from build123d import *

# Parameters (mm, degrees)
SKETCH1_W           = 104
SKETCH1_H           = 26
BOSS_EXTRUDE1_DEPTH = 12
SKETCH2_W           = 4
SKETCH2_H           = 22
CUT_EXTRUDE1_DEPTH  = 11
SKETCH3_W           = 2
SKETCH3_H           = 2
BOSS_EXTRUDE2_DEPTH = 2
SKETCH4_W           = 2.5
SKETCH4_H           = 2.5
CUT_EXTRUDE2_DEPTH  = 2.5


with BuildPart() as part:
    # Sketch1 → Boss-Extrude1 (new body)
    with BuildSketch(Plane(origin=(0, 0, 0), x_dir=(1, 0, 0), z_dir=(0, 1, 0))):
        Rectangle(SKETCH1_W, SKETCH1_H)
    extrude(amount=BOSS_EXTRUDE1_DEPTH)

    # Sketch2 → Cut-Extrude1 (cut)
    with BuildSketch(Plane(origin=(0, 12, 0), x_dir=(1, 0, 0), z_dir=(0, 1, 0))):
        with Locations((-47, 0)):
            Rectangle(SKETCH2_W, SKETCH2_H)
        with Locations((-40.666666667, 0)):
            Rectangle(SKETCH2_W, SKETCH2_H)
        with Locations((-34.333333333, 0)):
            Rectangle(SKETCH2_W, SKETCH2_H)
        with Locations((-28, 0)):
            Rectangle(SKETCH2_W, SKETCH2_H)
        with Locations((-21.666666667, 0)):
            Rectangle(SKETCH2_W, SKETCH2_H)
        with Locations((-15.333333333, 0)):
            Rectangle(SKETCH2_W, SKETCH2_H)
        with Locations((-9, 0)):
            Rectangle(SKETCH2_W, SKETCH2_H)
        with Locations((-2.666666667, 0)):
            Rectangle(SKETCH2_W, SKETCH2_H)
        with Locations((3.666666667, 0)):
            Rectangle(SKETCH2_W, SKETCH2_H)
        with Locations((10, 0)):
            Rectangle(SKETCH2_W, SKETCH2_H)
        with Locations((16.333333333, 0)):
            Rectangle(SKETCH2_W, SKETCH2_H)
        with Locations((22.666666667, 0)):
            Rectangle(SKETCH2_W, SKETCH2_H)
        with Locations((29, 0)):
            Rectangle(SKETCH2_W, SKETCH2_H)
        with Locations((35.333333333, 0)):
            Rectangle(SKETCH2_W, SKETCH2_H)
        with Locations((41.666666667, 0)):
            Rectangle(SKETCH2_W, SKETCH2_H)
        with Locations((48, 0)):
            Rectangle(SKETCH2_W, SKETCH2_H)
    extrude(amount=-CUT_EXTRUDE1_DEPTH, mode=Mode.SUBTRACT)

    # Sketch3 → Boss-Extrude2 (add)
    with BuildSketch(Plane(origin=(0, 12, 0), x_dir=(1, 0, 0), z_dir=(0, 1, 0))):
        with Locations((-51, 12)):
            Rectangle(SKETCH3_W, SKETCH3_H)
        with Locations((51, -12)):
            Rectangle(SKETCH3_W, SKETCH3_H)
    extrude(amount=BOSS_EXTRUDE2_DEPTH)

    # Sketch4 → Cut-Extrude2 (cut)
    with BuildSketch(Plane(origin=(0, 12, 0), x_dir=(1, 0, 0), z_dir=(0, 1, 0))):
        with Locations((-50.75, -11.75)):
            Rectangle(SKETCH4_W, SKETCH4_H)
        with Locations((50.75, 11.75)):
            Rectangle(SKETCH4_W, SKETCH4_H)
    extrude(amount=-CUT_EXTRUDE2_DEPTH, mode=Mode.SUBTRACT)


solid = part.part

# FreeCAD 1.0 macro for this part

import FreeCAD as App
import Part
import Sketcher


def add_polygon(sketch, points):
    """Adds a closed chain of lines whose ends are joined by coincident constraints."""
    first, n = sketch.GeometryCount, len(points)
    for a, b in zip(points, points[1:] + points[:1]):
        sketch.addGeometry(Part.LineSegment(App.Vector(*a, 0), App.Vector(*b, 0)), False)
    for i in range(n):
        sketch.addConstraint(Sketcher.Constraint("Coincident", first + i, 2, first + (i + 1) % n, 1))

doc = App.newDocument("Part")
body = doc.addObject("PartDesign::Body", "Body")

# Sketch on XZ plane
sketch1 = body.newObject("Sketcher::SketchObject", "Sketch")
sketch1.AttachmentSupport = (doc.getObject("XZ_Plane"), [""])
sketch1.MapMode = "FlatFace"
add_polygon(sketch1, [(-52, -13), (-52, 13), (52, 13), (52, -13)])  # lines 0-3
sketch1.addConstraint([
    Sketcher.Constraint("Vertical", 0),
    Sketcher.Constraint("Horizontal", 1),
    Sketcher.Constraint("Vertical", 2),
    Sketcher.Constraint("Horizontal", 3),
    Sketcher.Constraint("Symmetric", 0, 2, 2, 2, -1, 1),
    Sketcher.Constraint("DistanceX", 1, 1, 1, 2, 104.0),
    Sketcher.Constraint("DistanceY", 0, 1, 0, 2, 26.0),
])
pad1 = body.newObject("PartDesign::Pad", "Pad")
pad1.Profile = sketch1
pad1.Length = 12
pad1.Reversed = True

# Sketch on XZ plane
sketch2 = body.newObject("Sketcher::SketchObject", "Sketch001")
sketch2.AttachmentSupport = (doc.getObject("XZ_Plane"), [""])
sketch2.MapMode = "FlatFace"
sketch2.AttachmentOffset = App.Placement(App.Vector(0, 0, -12), App.Rotation())
add_polygon(sketch2, [(-49, -11), (-49, 11), (-45, 11), (-45, -11)])  # lines 0-3
add_polygon(sketch2, [(-42.7, -11), (-42.7, 11), (-38.7, 11), (-38.7, -11)])  # lines 4-7
add_polygon(sketch2, [(-36.3, -11), (-36.3, 11), (-32.3, 11), (-32.3, -11)])  # lines 8-11
add_polygon(sketch2, [(-30, -11), (-30, 11), (-26, 11), (-26, -11)])  # lines 12-15
add_polygon(sketch2, [(-23.7, -11), (-23.7, 11), (-19.7, 11), (-19.7, -11)])  # lines 16-19
add_polygon(sketch2, [(-17.3, -11), (-17.3, 11), (-13.3, 11), (-13.3, -11)])  # lines 20-23
add_polygon(sketch2, [(-11, -11), (-11, 11), (-7, 11), (-7, -11)])  # lines 24-27
add_polygon(sketch2, [(-4.7, -11), (-4.7, 11), (-0.7, 11), (-0.7, -11)])  # lines 28-31
add_polygon(sketch2, [(1.7, -11), (1.7, 11), (5.7, 11), (5.7, -11)])  # lines 32-35
add_polygon(sketch2, [(8, -11), (8, 11), (12, 11), (12, -11)])  # lines 36-39
add_polygon(sketch2, [(14.3, -11), (14.3, 11), (18.3, 11), (18.3, -11)])  # lines 40-43
add_polygon(sketch2, [(20.7, -11), (20.7, 11), (24.7, 11), (24.7, -11)])  # lines 44-47
add_polygon(sketch2, [(27, -11), (27, 11), (31, 11), (31, -11)])  # lines 48-51
add_polygon(sketch2, [(33.3, -11), (33.3, 11), (37.3, 11), (37.3, -11)])  # lines 52-55
add_polygon(sketch2, [(39.7, -11), (39.7, 11), (43.7, 11), (43.7, -11)])  # lines 56-59
add_polygon(sketch2, [(46, -11), (46, 11), (50, 11), (50, -11)])  # lines 60-63
sketch2.addConstraint([
    Sketcher.Constraint("Vertical", 0),
    Sketcher.Constraint("Horizontal", 1),
    Sketcher.Constraint("Vertical", 2),
    Sketcher.Constraint("Horizontal", 3),
    Sketcher.Constraint("Vertical", 4),
    Sketcher.Constraint("Horizontal", 5),
    Sketcher.Constraint("Vertical", 6),
    Sketcher.Constraint("Horizontal", 7),
    Sketcher.Constraint("Vertical", 8),
    Sketcher.Constraint("Horizontal", 9),
    Sketcher.Constraint("Vertical", 10),
    Sketcher.Constraint("Horizontal", 11),
    Sketcher.Constraint("Vertical", 12),
    Sketcher.Constraint("Horizontal", 13),
    Sketcher.Constraint("Vertical", 14),
    Sketcher.Constraint("Horizontal", 15),
    Sketcher.Constraint("Vertical", 16),
    Sketcher.Constraint("Horizontal", 17),
    Sketcher.Constraint("Vertical", 18),
    Sketcher.Constraint("Horizontal", 19),
    Sketcher.Constraint("Vertical", 20),
    Sketcher.Constraint("Horizontal", 21),
    Sketcher.Constraint("Vertical", 22),
    Sketcher.Constraint("Horizontal", 23),
    Sketcher.Constraint("Vertical", 24),
    Sketcher.Constraint("Horizontal", 25),
    Sketcher.Constraint("Vertical", 26),
    Sketcher.Constraint("Horizontal", 27),
    Sketcher.Constraint("Vertical", 28),
    Sketcher.Constraint("Horizontal", 29),
    Sketcher.Constraint("Vertical", 30),
    Sketcher.Constraint("Horizontal", 31),
    Sketcher.Constraint("Vertical", 32),
    Sketcher.Constraint("Horizontal", 33),
    Sketcher.Constraint("Vertical", 34),
    Sketcher.Constraint("Horizontal", 35),
    Sketcher.Constraint("Vertical", 36),
    Sketcher.Constraint("Horizontal", 37),
    Sketcher.Constraint("Vertical", 38),
    Sketcher.Constraint("Horizontal", 39),
    Sketcher.Constraint("Vertical", 40),
    Sketcher.Constraint("Horizontal", 41),
    Sketcher.Constraint("Vertical", 42),
    Sketcher.Constraint("Horizontal", 43),
    Sketcher.Constraint("Vertical", 44),
    Sketcher.Constraint("Horizontal", 45),
    Sketcher.Constraint("Vertical", 46),
    Sketcher.Constraint("Horizontal", 47),
    Sketcher.Constraint("Vertical", 48),
    Sketcher.Constraint("Horizontal", 49),
    Sketcher.Constraint("Vertical", 50),
    Sketcher.Constraint("Horizontal", 51),
    Sketcher.Constraint("Vertical", 52),
    Sketcher.Constraint("Horizontal", 53),
    Sketcher.Constraint("Vertical", 54),
    Sketcher.Constraint("Horizontal", 55),
    Sketcher.Constraint("Vertical", 56),
    Sketcher.Constraint("Horizontal", 57),
    Sketcher.Constraint("Vertical", 58),
    Sketcher.Constraint("Horizontal", 59),
    Sketcher.Constraint("Vertical", 60),
    Sketcher.Constraint("Horizontal", 61),
    Sketcher.Constraint("Vertical", 62),
    Sketcher.Constraint("Horizontal", 63),
    Sketcher.Constraint("Horizontal", 1, 2, 4, 2),
    Sketcher.Constraint("Horizontal", 3, 2, 6, 2),
    Sketcher.Constraint("Horizontal", 5, 2, 8, 2),
    Sketcher.Constraint("Horizontal", 7, 2, 10, 2),
    Sketcher.Constraint("Horizontal", 9, 2, 12, 2),
    Sketcher.Constraint("Horizontal", 11, 2, 14, 2),
    Sketcher.Constraint("Horizontal", 13, 2, 16, 2),
    Sketcher.Constraint("Horizontal", 15, 2, 18, 2),
    Sketcher.Constraint("Horizontal", 17, 2, 20, 2),
    Sketcher.Constraint("Horizontal", 19, 2, 22, 2),
    Sketcher.Constraint("Horizontal", 21, 2, 24, 2),
    Sketcher.Constraint("Horizontal", 23, 2, 26, 2),
    Sketcher.Constraint("Horizontal", 25, 2, 28, 2),
    Sketcher.Constraint("Horizontal", 27, 2, 30, 2),
    Sketcher.Constraint("Horizontal", 29, 2, 32, 2),
    Sketcher.Constraint("Horizontal", 31, 2, 34, 2),
    Sketcher.Constraint("Horizontal", 33, 2, 36, 2),
    Sketcher.Constraint("Horizontal", 35, 2, 38, 2),
    Sketcher.Constraint("Horizontal", 37, 2, 40, 2),
    Sketcher.Constraint("Horizontal", 39, 2, 42, 2),
    Sketcher.Constraint("Horizontal", 41, 2, 44, 2),
    Sketcher.Constraint("Horizontal", 43, 2, 46, 2),
    Sketcher.Constraint("Horizontal", 45, 2, 48, 2),
    Sketcher.Constraint("Horizontal", 47, 2, 50, 2),
    Sketcher.Constraint("Horizontal", 49, 2, 52, 2),
    Sketcher.Constraint("Horizontal", 51, 2, 54, 2),
    Sketcher.Constraint("Horizontal", 53, 2, 56, 2),
    Sketcher.Constraint("Horizontal", 55, 2, 58, 2),
    Sketcher.Constraint("Horizontal", 57, 2, 60, 2),
    Sketcher.Constraint("Horizontal", 59, 2, 62, 2),
    Sketcher.Constraint("Equal", 3, 5),
    Sketcher.Constraint("Equal", 7, 9),
    Sketcher.Constraint("Equal", 11, 13),
    Sketcher.Constraint("Equal", 15, 17),
    Sketcher.Constraint("Equal", 19, 21),
    Sketcher.Constraint("Equal", 23, 25),
    Sketcher.Constraint("Equal", 27, 29),
    Sketcher.Constraint("Equal", 31, 33),
    Sketcher.Constraint("Equal", 35, 37),
    Sketcher.Constraint("Equal", 39, 41),
    Sketcher.Constraint("Equal", 43, 45),
    Sketcher.Constraint("Equal", 47, 49),
    Sketcher.Constraint("Equal", 51, 53),
    Sketcher.Constraint("Equal", 55, 57),
    Sketcher.Constraint("Equal", 59, 61),
    Sketcher.Constraint("DistanceX", 1, 1, 1, 2, 4.0),
    Sketcher.Constraint("DistanceY", 0, 1, 0, 2, 22.0),
    Sketcher.Constraint("DistanceX", 0, 2, -1, 1, 49.0),
    Sketcher.Constraint("DistanceY", -1, 1, 0, 2, 11.0),
    Sketcher.Constraint("DistanceX", 12, 2, -1, 1, 30.0),
    Sketcher.Constraint("DistanceX", 24, 2, -1, 1, 11.0),
    Sketcher.Constraint("DistanceX", -1, 1, 36, 2, 8.0),
    Sketcher.Constraint("DistanceX", -1, 1, 48, 2, 27.0),
    Sketcher.Constraint("DistanceX", -1, 1, 60, 2, 46.0),
    Sketcher.Constraint("DistanceX", 4, 2, -1, 1, 42.666667),
    Sketcher.Constraint("DistanceX", 8, 2, -1, 1, 36.333333),
    Sketcher.Constraint("DistanceX", 16, 2, -1, 1, 23.666667),
    Sketcher.Constraint("DistanceX", 20, 2, -1, 1, 17.333333),
    Sketcher.Constraint("DistanceX", 28, 2, -1, 1, 4.666667),
    Sketcher.Constraint("DistanceX", -1, 1, 32, 2, 1.666667),
    Sketcher.Constraint("DistanceX", -1, 1, 40, 2, 14.333333),
    Sketcher.Constraint("DistanceX", -1, 1, 44, 2, 20.666667),
    Sketcher.Constraint("DistanceX", -1, 1, 52, 2, 33.333333),
    Sketcher.Constraint("DistanceX", -1, 1, 56, 2, 39.666667),
])
pocket1 = body.newObject("PartDesign::Pocket", "Pocket")
pocket1.Profile = sketch2
pocket1.Length = 11
pocket1.Reversed = True

# Sketch on XZ plane
sketch3 = body.newObject("Sketcher::SketchObject", "Sketch002")
sketch3.AttachmentSupport = (doc.getObject("XZ_Plane"), [""])
sketch3.MapMode = "FlatFace"
sketch3.AttachmentOffset = App.Placement(App.Vector(0, 0, -12), App.Rotation())
add_polygon(sketch3, [(-52, -13), (-52, -11), (-50, -11), (-50, -13)])  # lines 0-3
add_polygon(sketch3, [(50, 11), (50, 13), (52, 13), (52, 11)])  # lines 4-7
sketch3.addConstraint([
    Sketcher.Constraint("Vertical", 0),
    Sketcher.Constraint("Horizontal", 1),
    Sketcher.Constraint("Vertical", 2),
    Sketcher.Constraint("Horizontal", 3),
    Sketcher.Constraint("Vertical", 4),
    Sketcher.Constraint("Horizontal", 5),
    Sketcher.Constraint("Vertical", 6),
    Sketcher.Constraint("Horizontal", 7),
    Sketcher.Constraint("Symmetric", 2, 2, 4, 2, -1, 1),
    Sketcher.Constraint("Symmetric", 0, 2, 6, 2, -1, 1),
    Sketcher.Constraint("Equal", 7, 0),
    Sketcher.Constraint("DistanceX", 1, 1, 1, 2, 2.0),
    Sketcher.Constraint("DistanceX", 0, 2, -1, 1, 52.0),
    Sketcher.Constraint("DistanceY", 0, 2, -1, 1, 11.0),
])
pad2 = body.newObject("PartDesign::Pad", "Pad001")
pad2.Profile = sketch3
pad2.Length = 2
pad2.Reversed = True

# Sketch on XZ plane
sketch4 = body.newObject("Sketcher::SketchObject", "Sketch003")
sketch4.AttachmentSupport = (doc.getObject("XZ_Plane"), [""])
sketch4.MapMode = "FlatFace"
sketch4.AttachmentOffset = App.Placement(App.Vector(0, 0, -12), App.Rotation())
add_polygon(sketch4, [(-52, 10.5), (-52, 13), (-49.5, 13), (-49.5, 10.5)])  # lines 0-3
add_polygon(sketch4, [(49.5, -13), (49.5, -10.5), (52, -10.5), (52, -13)])  # lines 4-7
sketch4.addConstraint([
    Sketcher.Constraint("Vertical", 0),
    Sketcher.Constraint("Horizontal", 1),
    Sketcher.Constraint("Vertical", 2),
    Sketcher.Constraint("Horizontal", 3),
    Sketcher.Constraint("Vertical", 4),
    Sketcher.Constraint("Horizontal", 5),
    Sketcher.Constraint("Vertical", 6),
    Sketcher.Constraint("Horizontal", 7),
    Sketcher.Constraint("Symmetric", 2, 2, 4, 2, -1, 1),
    Sketcher.Constraint("Symmetric", 0, 2, 6, 2, -1, 1),
    Sketcher.Constraint("Equal", 7, 0),
    Sketcher.Constraint("DistanceX", 1, 1, 1, 2, 2.5),
    Sketcher.Constraint("DistanceX", 0, 2, -1, 1, 52.0),
    Sketcher.Constraint("DistanceY", -1, 1, 0, 2, 13.0),
])
pocket2 = body.newObject("PartDesign::Pocket", "Pocket001")
pocket2.Profile = sketch4
pocket2.Length = 2.5
pocket2.Reversed = True

doc.recompute()
